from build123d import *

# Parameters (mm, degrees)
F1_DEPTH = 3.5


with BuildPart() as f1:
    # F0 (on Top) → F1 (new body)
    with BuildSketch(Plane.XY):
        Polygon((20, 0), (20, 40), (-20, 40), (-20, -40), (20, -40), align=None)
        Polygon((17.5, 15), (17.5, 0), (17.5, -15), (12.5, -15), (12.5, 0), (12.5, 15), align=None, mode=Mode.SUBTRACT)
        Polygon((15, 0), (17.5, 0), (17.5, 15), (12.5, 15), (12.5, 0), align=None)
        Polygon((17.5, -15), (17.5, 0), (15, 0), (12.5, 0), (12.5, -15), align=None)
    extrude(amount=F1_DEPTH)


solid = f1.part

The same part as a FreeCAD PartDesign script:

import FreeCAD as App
import Part
import Sketcher
from FreeCAD import Vector


def add_polygon(sketch, points):
    """Adds a closed chain of lines whose ends are joined by coincident constraints."""
    first, n = sketch.GeometryCount, len(points)
    for a, b in zip(points, points[1:] + points[:1]):
        sketch.addGeometry(Part.LineSegment(App.Vector(*a, 0), App.Vector(*b, 0)), False)
    for i in range(n):
        sketch.addConstraint(Sketcher.Constraint("Coincident", first + i, 2, first + (i + 1) % n, 1))

doc = App.newDocument("Part")
body = doc.addObject("PartDesign::Body", "Body")

# Sketch on XY plane
sketch1 = body.newObject("Sketcher::SketchObject", "Sketch")
sketch1.AttachmentSupport = (doc.getObject("XY_Plane"), [""])
sketch1.MapMode = "FlatFace"
add_polygon(sketch1, [(20, 40), (-20, 40), (-20, -40), (20, -40)])  # lines 0-3
sketch1.addConstraint([
    Sketcher.Constraint("Horizontal", 0),
    Sketcher.Constraint("Vertical", 1),
    Sketcher.Constraint("Horizontal", 2),
    Sketcher.Constraint("Vertical", 3),
    Sketcher.Constraint("Symmetric", 0, 2, 2, 2, -1, 1),
    Sketcher.Constraint("DistanceX", 0, 2, 0, 1, 40.0),
    Sketcher.Constraint("DistanceY", 1, 2, 1, 1, 80.0),
])
pad1 = body.newObject("PartDesign::Pad", "Pad")
pad1.Profile = sketch1
pad1.Length = 3.5

doc.recompute()
